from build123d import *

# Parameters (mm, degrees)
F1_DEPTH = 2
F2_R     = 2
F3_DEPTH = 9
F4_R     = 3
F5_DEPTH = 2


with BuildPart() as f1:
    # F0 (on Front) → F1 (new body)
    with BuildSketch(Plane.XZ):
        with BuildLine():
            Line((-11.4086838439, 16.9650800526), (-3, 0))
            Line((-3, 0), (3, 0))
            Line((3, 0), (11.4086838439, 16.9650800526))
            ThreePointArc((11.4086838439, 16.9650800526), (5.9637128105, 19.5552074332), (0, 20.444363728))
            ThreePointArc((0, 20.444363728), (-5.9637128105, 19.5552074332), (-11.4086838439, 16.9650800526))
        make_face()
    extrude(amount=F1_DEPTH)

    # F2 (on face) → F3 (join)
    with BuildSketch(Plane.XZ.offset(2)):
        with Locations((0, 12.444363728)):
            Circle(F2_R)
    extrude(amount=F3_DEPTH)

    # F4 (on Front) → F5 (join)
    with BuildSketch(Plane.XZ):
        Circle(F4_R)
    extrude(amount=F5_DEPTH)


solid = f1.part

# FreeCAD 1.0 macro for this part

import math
import FreeCAD as App
import Part
import Sketcher
from FreeCAD import Vector

doc = App.newDocument("Part")
body = doc.addObject("PartDesign::Body", "Body")

# Sketch on XZ plane
sketch1 = doc.addObject("Sketcher::SketchObject", "Sketch")
body.addObject(sketch1)
sketch1.AttachmentSupport = (doc.XZ_Plane, [""])
sketch1.MapMode = "FlatFace"
sketch1.addGeometry([
    Part.LineSegment(Vector(-11, 17, 0), Vector(-3, 0, 0)),  # 0
    Part.LineSegment(Vector(-3, 0, 0), Vector(3, 0, 0)),  # 1
    Part.LineSegment(Vector(3, 0, 0), Vector(11, 17, 0)),  # 2
    Part.ArcOfCircle(Part.Circle(Vector(0, 0, 0), Vector(0, 0, 1), 20), math.radians(56), math.radians(90)),  # 3
    Part.ArcOfCircle(Part.Circle(Vector(0, 0, 0), Vector(0, 0, 1), 20), math.radians(90), math.radians(124)),  # 4
], False)
sketch1.addConstraint([
    Sketcher.Constraint("Coincident", 0, 2, 1, 1),
    Sketcher.Constraint("Coincident", 1, 2, 2, 1),
    Sketcher.Constraint("Coincident", 2, 2, 3, 1),
    Sketcher.Constraint("Tangent", 3, 2, 4, 1),
    Sketcher.Constraint("Coincident", 4, 2, 0, 1),
    Sketcher.Constraint("Horizontal", 1),
    Sketcher.Constraint("Coincident", 3, 3, -1, 1),
    Sketcher.Constraint("Equal", 3, 4),
    Sketcher.Constraint("Symmetric", 0, 2, 1, 2, -1, 1),
    Sketcher.Constraint("PointOnObject", 3, 2, -2),
    Sketcher.Constraint("Horizontal", 2, 2, 4, 2),
    Sketcher.Constraint("DistanceX", 1, 1, 1, 2, 6.0),
    Sketcher.Constraint("Radius", 3, 20.444364),
    Sketcher.Constraint("Distance", 0, 18.934622),
])
pad1 = doc.addObject("PartDesign::Pad", "Pad")
body.addObject(pad1)
pad1.Profile = sketch1
pad1.Length = 2

# Sketch on XZ plane
sketch2 = doc.addObject("Sketcher::SketchObject", "Sketch001")
body.addObject(sketch2)
sketch2.AttachmentSupport = (doc.XZ_Plane, [""])
sketch2.MapMode = "FlatFace"
sketch2.AttachmentOffset = App.Placement(Vector(0, 0, 2), App.Rotation())
sketch2.addGeometry(Part.Circle(Vector(0, 12.4, 0), Vector(0, 0, 1), 2), False)
sketch2.addConstraint([
    Sketcher.Constraint("PointOnObject", 0, 3, -2),
    Sketcher.Constraint("Diameter", 0, 4.0),
    Sketcher.Constraint("DistanceY", -1, 1, 0, 3, 12.444364),
])
pad2 = doc.addObject("PartDesign::Pad", "Pad001")
body.addObject(pad2)
pad2.Profile = sketch2
pad2.Length = 9

# Sketch on XZ plane
sketch3 = doc.addObject("Sketcher::SketchObject", "Sketch002")
body.addObject(sketch3)
sketch3.AttachmentSupport = (doc.XZ_Plane, [""])
sketch3.MapMode = "FlatFace"
sketch3.addGeometry(Part.Circle(Vector(0, 0, 0), Vector(0, 0, 1), 3), False)
sketch3.addConstraint([
    Sketcher.Constraint("Coincident", 0, 3, -1, 1),
    Sketcher.Constraint("Diameter", 0, 6.0),
])
pad3 = doc.addObject("PartDesign::Pad", "Pad002")
body.addObject(pad3)
pad3.Profile = sketch3
pad3.Length = 2

doc.recompute()
